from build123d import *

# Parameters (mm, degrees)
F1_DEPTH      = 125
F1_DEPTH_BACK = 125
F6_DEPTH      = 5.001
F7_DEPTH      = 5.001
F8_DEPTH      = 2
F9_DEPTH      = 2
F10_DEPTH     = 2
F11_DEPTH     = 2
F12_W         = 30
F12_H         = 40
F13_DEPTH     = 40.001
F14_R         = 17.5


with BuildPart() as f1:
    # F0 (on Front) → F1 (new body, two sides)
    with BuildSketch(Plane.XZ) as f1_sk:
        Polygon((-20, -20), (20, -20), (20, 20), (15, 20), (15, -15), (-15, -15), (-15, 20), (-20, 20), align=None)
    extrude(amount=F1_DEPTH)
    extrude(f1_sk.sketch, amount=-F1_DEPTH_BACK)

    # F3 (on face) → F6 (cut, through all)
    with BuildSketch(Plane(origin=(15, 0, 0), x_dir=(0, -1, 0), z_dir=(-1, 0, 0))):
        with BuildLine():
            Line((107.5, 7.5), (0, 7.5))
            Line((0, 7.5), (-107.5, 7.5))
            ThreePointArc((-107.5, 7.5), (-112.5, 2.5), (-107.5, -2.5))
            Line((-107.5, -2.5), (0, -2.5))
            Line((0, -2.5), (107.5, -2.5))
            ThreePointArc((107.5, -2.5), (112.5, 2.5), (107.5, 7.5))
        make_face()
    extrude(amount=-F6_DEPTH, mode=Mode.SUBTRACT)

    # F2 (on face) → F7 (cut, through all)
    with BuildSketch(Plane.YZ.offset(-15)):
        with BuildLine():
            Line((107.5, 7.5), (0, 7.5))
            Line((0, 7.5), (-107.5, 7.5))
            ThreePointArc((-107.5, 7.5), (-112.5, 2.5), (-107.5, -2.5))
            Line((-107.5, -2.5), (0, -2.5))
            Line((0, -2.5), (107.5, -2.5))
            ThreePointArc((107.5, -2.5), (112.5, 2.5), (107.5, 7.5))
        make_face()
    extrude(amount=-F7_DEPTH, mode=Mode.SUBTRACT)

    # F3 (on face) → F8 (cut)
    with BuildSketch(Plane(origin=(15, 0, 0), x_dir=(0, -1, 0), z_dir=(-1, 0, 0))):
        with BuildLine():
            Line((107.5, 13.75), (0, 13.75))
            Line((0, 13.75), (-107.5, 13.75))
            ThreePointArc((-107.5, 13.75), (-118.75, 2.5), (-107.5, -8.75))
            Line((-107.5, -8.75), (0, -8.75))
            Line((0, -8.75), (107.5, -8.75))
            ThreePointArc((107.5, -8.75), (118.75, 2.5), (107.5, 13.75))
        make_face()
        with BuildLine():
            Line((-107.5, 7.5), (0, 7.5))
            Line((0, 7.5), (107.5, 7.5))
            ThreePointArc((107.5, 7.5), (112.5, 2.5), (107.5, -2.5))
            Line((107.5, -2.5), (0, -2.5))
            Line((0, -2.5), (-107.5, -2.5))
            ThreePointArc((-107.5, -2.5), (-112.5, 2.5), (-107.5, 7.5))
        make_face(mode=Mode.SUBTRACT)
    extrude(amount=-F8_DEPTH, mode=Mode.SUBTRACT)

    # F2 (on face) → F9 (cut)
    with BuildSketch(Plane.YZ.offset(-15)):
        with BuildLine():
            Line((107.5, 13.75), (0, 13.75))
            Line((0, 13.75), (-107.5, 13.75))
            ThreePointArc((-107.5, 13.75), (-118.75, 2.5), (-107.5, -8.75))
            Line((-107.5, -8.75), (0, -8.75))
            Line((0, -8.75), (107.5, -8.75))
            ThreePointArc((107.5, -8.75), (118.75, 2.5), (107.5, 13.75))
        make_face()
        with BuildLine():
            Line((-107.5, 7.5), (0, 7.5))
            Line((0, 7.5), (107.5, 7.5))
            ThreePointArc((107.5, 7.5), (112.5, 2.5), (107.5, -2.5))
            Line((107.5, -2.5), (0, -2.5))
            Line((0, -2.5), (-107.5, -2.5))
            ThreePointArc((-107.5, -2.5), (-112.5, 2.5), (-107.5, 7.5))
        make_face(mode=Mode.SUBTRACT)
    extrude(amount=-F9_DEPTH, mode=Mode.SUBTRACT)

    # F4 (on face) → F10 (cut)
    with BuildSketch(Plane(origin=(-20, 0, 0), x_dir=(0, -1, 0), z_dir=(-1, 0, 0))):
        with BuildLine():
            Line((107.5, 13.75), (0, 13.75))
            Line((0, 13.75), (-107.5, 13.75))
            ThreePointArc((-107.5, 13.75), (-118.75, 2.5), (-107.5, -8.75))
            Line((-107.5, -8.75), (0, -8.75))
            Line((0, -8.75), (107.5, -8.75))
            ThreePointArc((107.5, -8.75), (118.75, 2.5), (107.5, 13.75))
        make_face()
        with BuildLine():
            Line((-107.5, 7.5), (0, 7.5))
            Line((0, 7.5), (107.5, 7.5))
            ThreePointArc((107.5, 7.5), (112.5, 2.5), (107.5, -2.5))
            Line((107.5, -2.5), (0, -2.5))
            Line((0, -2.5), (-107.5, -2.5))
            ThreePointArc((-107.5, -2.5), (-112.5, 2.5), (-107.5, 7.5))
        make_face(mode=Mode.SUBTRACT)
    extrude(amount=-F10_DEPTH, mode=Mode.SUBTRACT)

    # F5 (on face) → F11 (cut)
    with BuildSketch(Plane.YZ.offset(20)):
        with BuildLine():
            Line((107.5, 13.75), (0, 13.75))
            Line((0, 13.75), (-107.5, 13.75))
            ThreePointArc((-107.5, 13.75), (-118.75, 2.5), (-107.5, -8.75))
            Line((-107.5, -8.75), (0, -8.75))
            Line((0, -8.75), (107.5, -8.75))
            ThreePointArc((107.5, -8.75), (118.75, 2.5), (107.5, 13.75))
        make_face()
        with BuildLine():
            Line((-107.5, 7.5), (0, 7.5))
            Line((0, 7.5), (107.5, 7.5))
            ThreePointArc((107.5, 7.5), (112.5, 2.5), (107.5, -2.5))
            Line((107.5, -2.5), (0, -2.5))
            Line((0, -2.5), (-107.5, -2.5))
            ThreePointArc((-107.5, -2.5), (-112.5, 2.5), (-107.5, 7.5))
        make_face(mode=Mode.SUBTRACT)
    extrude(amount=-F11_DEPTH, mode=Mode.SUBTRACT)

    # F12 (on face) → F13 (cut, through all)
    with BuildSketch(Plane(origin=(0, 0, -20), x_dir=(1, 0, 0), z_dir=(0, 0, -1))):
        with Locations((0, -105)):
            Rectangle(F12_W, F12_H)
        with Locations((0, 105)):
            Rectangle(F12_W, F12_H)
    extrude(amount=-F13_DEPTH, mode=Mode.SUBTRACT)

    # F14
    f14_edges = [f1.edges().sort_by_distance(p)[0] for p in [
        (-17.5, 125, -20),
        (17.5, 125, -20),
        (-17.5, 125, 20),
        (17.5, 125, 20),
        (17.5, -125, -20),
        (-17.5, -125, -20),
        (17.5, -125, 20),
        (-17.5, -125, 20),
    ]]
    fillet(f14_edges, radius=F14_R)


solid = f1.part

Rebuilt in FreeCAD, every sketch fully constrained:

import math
import FreeCAD as App
import Part
import Sketcher


def edges_at(feature, points):
    """Names of the edges that pass closest to the given points."""
    edges = feature.Shape.Edges
    near = lambda p: min(range(len(edges)), key=lambda i: edges[i].distToShape(Part.Vertex(*p))[0])
    return sorted({f"Edge{near(p) + 1}" for p in points})


def add_polygon(sketch, points):
    """Adds a closed chain of lines whose ends are joined by coincident constraints."""
    first, n = sketch.GeometryCount, len(points)
    for a, b in zip(points, points[1:] + points[:1]):
        sketch.addGeometry(Part.LineSegment(App.Vector(*a, 0), App.Vector(*b, 0)), False)
    for i in range(n):
        sketch.addConstraint(Sketcher.Constraint("Coincident", first + i, 2, first + (i + 1) % n, 1))

doc = App.newDocument("Part")
body = doc.addObject("PartDesign::Body", "Body")

# Sketch on XZ plane
sketch1 = doc.addObject("Sketcher::SketchObject", "Sketch")
body.addObject(sketch1)
sketch1.AttachmentSupport = (doc.XZ_Plane, [""])
sketch1.MapMode = "FlatFace"
add_polygon(sketch1, [(-20, -20), (20, -20), (20, 20), (15, 20), (15, -15), (-15, -15), (-15, 20), (-20, 20)])  # lines 0-7
sketch1.addConstraint(Sketcher.Constraint("Horizontal", 0))
sketch1.addConstraint(Sketcher.Constraint("Vertical", 1))
sketch1.addConstraint(Sketcher.Constraint("Horizontal", 2))
sketch1.addConstraint(Sketcher.Constraint("Vertical", 3))
sketch1.addConstraint(Sketcher.Constraint("Horizontal", 4))
sketch1.addConstraint(Sketcher.Constraint("Vertical", 5))
sketch1.addConstraint(Sketcher.Constraint("Horizontal", 6))
sketch1.addConstraint(Sketcher.Constraint("Vertical", 7))
sketch1.addConstraint(Sketcher.Constraint("Symmetric", 0, 2, 6, 2, -1, 1))
sketch1.addConstraint(Sketcher.Constraint("Symmetric", 2, 2, 5, 2, -2))
sketch1.addConstraint(Sketcher.Constraint("Equal", 0, 1))
sketch1.addConstraint(Sketcher.Constraint("DistanceX", 0, 1, 0, 2, 40.0))
sketch1.addConstraint(Sketcher.Constraint("DistanceX", 2, 2, 2, 1, 5.0))
sketch1.addConstraint(Sketcher.Constraint("DistanceY", 3, 2, 3, 1, 35.0))
pad1 = doc.addObject("PartDesign::Pad", "Pad")
body.addObject(pad1)
pad1.Profile = sketch1
pad1.Type = "TwoLengths"
pad1.Length = 125
pad1.Length2 = 125

# Sketch on YZ plane
sketch2 = doc.addObject("Sketcher::SketchObject", "Sketch001")
body.addObject(sketch2)
sketch2.AttachmentSupport = (doc.YZ_Plane, [""])
sketch2.MapMode = "FlatFace"
sketch2.AttachmentOffset = App.Placement(App.Vector(0, 0, 15), App.Rotation())
sketch2.addGeometry(Part.LineSegment(App.Vector(-107.5, 7.5, 0), App.Vector(107.5, 7.5, 0)), False)
sketch2.addGeometry(Part.ArcOfCircle(Part.Circle(App.Vector(107.5, 2.5, 0), App.Vector(0, 0, 1), 5), math.radians(-90), math.radians(90)), False)
sketch2.addGeometry(Part.LineSegment(App.Vector(107.5, -2.5, 0), App.Vector(-107.5, -2.5, 0)), False)
sketch2.addGeometry(Part.ArcOfCircle(Part.Circle(App.Vector(-107.5, 2.5, 0), App.Vector(0, 0, 1), 5), math.radians(90), math.radians(270)), False)
sketch2.addConstraint(Sketcher.Constraint("Tangent", 0, 2, 1, 2))
sketch2.addConstraint(Sketcher.Constraint("Tangent", 1, 1, 2, 1))
sketch2.addConstraint(Sketcher.Constraint("Tangent", 2, 2, 3, 2))
sketch2.addConstraint(Sketcher.Constraint("Tangent", 3, 1, 0, 1))
sketch2.addConstraint(Sketcher.Constraint("Horizontal", 0))
sketch2.addConstraint(Sketcher.Constraint("Horizontal", 2))
sketch2.addConstraint(Sketcher.Constraint("Radius", 1, 5.0))
sketch2.addConstraint(Sketcher.Constraint("DistanceX", 0, 1, 0, 2, 215.0))
sketch2.addConstraint(Sketcher.Constraint("DistanceX", -1, 1, 1, 3, 107.5))
sketch2.addConstraint(Sketcher.Constraint("DistanceY", -1, 1, 1, 3, 2.5))
pocket1 = doc.addObject("PartDesign::Pocket", "Pocket")
body.addObject(pocket1)
pocket1.Profile = sketch2
pocket1.Type = "ThroughAll"
pocket1.Reversed = True

# Sketch on YZ plane
sketch3 = doc.addObject("Sketcher::SketchObject", "Sketch002")
body.addObject(sketch3)
sketch3.AttachmentSupport = (doc.YZ_Plane, [""])
sketch3.MapMode = "FlatFace"
sketch3.AttachmentOffset = App.Placement(App.Vector(0, 0, -15), App.Rotation())
sketch3.addGeometry(Part.LineSegment(App.Vector(107.5, 7.5, 0), App.Vector(-107.5, 7.5, 0)), False)
sketch3.addGeometry(Part.ArcOfCircle(Part.Circle(App.Vector(-107.5, 2.5, 0), App.Vector(0, 0, 1), 5), math.radians(90), math.radians(270)), False)
sketch3.addGeometry(Part.LineSegment(App.Vector(-107.5, -2.5, 0), App.Vector(107.5, -2.5, 0)), False)
sketch3.addGeometry(Part.ArcOfCircle(Part.Circle(App.Vector(107.5, 2.5, 0), App.Vector(0, 0, 1), 5), math.radians(-90), math.radians(90)), False)
sketch3.addConstraint(Sketcher.Constraint("Tangent", 0, 2, 1, 1))
sketch3.addConstraint(Sketcher.Constraint("Tangent", 1, 2, 2, 1))
sketch3.addConstraint(Sketcher.Constraint("Tangent", 2, 2, 3, 1))
sketch3.addConstraint(Sketcher.Constraint("Tangent", 3, 2, 0, 1))
sketch3.addConstraint(Sketcher.Constraint("Horizontal", 0))
sketch3.addConstraint(Sketcher.Constraint("Horizontal", 2))
sketch3.addConstraint(Sketcher.Constraint("Radius", 1, 5.0))
sketch3.addConstraint(Sketcher.Constraint("DistanceX", 0, 2, 0, 1, 215.0))
sketch3.addConstraint(Sketcher.Constraint("DistanceX", 1, 3, -1, 1, 107.5))
sketch3.addConstraint(Sketcher.Constraint("DistanceY", -1, 1, 1, 3, 2.5))
pocket2 = doc.addObject("PartDesign::Pocket", "Pocket001")
body.addObject(pocket2)
pocket2.Profile = sketch3
pocket2.Type = "ThroughAll"

# Sketch on YZ plane
sketch4 = doc.addObject("Sketcher::SketchObject", "Sketch003")
body.addObject(sketch4)
sketch4.AttachmentSupport = (doc.YZ_Plane, [""])
sketch4.MapMode = "FlatFace"
sketch4.AttachmentOffset = App.Placement(App.Vector(0, 0, 15), App.Rotation())
sketch4.addGeometry(Part.LineSegment(App.Vector(-107.5, 13.75, 0), App.Vector(107.5, 13.75, 0)), False)
sketch4.addGeometry(Part.ArcOfCircle(Part.Circle(App.Vector(107.5, 2.5, 0), App.Vector(0, 0, 1), 11.25), math.radians(-90), math.radians(90)), False)
sketch4.addGeometry(Part.LineSegment(App.Vector(107.5, -8.75, 0), App.Vector(-107.5, -8.75, 0)), False)
sketch4.addGeometry(Part.ArcOfCircle(Part.Circle(App.Vector(-107.5, 2.5, 0), App.Vector(0, 0, 1), 11.25), math.radians(90), math.radians(270)), False)
sketch4.addGeometry(Part.ArcOfCircle(Part.Circle(App.Vector(107.5, 2.5, 0), App.Vector(0, 0, 1), 5), math.radians(-90), math.radians(90)), False)
sketch4.addGeometry(Part.LineSegment(App.Vector(107.5, 7.5, 0), App.Vector(-107.5, 7.5, 0)), False)
sketch4.addGeometry(Part.ArcOfCircle(Part.Circle(App.Vector(-107.5, 2.5, 0), App.Vector(0, 0, 1), 5), math.radians(90), math.radians(270)), False)
sketch4.addGeometry(Part.LineSegment(App.Vector(-107.5, -2.5, 0), App.Vector(107.5, -2.5, 0)), False)
sketch4.addConstraint(Sketcher.Constraint("Tangent", 0, 2, 1, 2))
sketch4.addConstraint(Sketcher.Constraint("Tangent", 1, 1, 2, 1))
sketch4.addConstraint(Sketcher.Constraint("Tangent", 2, 2, 3, 2))
sketch4.addConstraint(Sketcher.Constraint("Tangent", 3, 1, 0, 1))
sketch4.addConstraint(Sketcher.Constraint("Tangent", 4, 2, 5, 1))
sketch4.addConstraint(Sketcher.Constraint("Tangent", 5, 2, 6, 1))
sketch4.addConstraint(Sketcher.Constraint("Tangent", 6, 2, 7, 1))
sketch4.addConstraint(Sketcher.Constraint("Tangent", 7, 2, 4, 1))
sketch4.addConstraint(Sketcher.Constraint("Horizontal", 0))
sketch4.addConstraint(Sketcher.Constraint("Horizontal", 2))
sketch4.addConstraint(Sketcher.Constraint("Horizontal", 5))
sketch4.addConstraint(Sketcher.Constraint("Horizontal", 7))
sketch4.addConstraint(Sketcher.Constraint("Coincident", 4, 3, 1, 3))
sketch4.addConstraint(Sketcher.Constraint("Vertical", 6, 3, 2, 2))
sketch4.addConstraint(Sketcher.Constraint("Radius", 4, 5.0))
sketch4.addConstraint(Sketcher.Constraint("DistanceX", 0, 1, 0, 2, 215.0))
sketch4.addConstraint(Sketcher.Constraint("Radius", 1, 11.25))
sketch4.addConstraint(Sketcher.Constraint("DistanceX", -1, 1, 1, 3, 107.5))
sketch4.addConstraint(Sketcher.Constraint("DistanceY", -1, 1, 1, 3, 2.5))
pocket3 = doc.addObject("PartDesign::Pocket", "Pocket002")
body.addObject(pocket3)
pocket3.Profile = sketch4
pocket3.Length = 2
pocket3.Reversed = True

# Sketch on YZ plane
sketch5 = doc.addObject("Sketcher::SketchObject", "Sketch004")
body.addObject(sketch5)
sketch5.AttachmentSupport = (doc.YZ_Plane, [""])
sketch5.MapMode = "FlatFace"
sketch5.AttachmentOffset = App.Placement(App.Vector(0, 0, -15), App.Rotation())
sketch5.addGeometry(Part.LineSegment(App.Vector(107.5, 13.75, 0), App.Vector(-107.5, 13.75, 0)), False)
sketch5.addGeometry(Part.ArcOfCircle(Part.Circle(App.Vector(-107.5, 2.5, 0), App.Vector(0, 0, 1), 11.25), math.radians(90), math.radians(270)), False)
sketch5.addGeometry(Part.LineSegment(App.Vector(-107.5, -8.75, 0), App.Vector(107.5, -8.75, 0)), False)
sketch5.addGeometry(Part.ArcOfCircle(Part.Circle(App.Vector(107.5, 2.5, 0), App.Vector(0, 0, 1), 11.25), math.radians(-90), math.radians(90)), False)
sketch5.addGeometry(Part.ArcOfCircle(Part.Circle(App.Vector(-107.5, 2.5, 0), App.Vector(0, 0, 1), 5), math.radians(90), math.radians(270)), False)
sketch5.addGeometry(Part.LineSegment(App.Vector(-107.5, 7.5, 0), App.Vector(107.5, 7.5, 0)), False)
sketch5.addGeometry(Part.ArcOfCircle(Part.Circle(App.Vector(107.5, 2.5, 0), App.Vector(0, 0, 1), 5), math.radians(-90), math.radians(90)), False)
sketch5.addGeometry(Part.LineSegment(App.Vector(107.5, -2.5, 0), App.Vector(-107.5, -2.5, 0)), False)
sketch5.addConstraint(Sketcher.Constraint("Tangent", 0, 2, 1, 1))
sketch5.addConstraint(Sketcher.Constraint("Tangent", 1, 2, 2, 1))
sketch5.addConstraint(Sketcher.Constraint("Tangent", 2, 2, 3, 1))
sketch5.addConstraint(Sketcher.Constraint("Tangent", 3, 2, 0, 1))
sketch5.addConstraint(Sketcher.Constraint("Tangent", 4, 1, 5, 1))
sketch5.addConstraint(Sketcher.Constraint("Tangent", 5, 2, 6, 2))
sketch5.addConstraint(Sketcher.Constraint("Tangent", 6, 1, 7, 1))
sketch5.addConstraint(Sketcher.Constraint("Tangent", 7, 2, 4, 2))
sketch5.addConstraint(Sketcher.Constraint("Horizontal", 0))
sketch5.addConstraint(Sketcher.Constraint("Horizontal", 2))
sketch5.addConstraint(Sketcher.Constraint("Horizontal", 5))
sketch5.addConstraint(Sketcher.Constraint("Horizontal", 7))
sketch5.addConstraint(Sketcher.Constraint("Coincident", 4, 3, 1, 3))
sketch5.addConstraint(Sketcher.Constraint("Vertical", 6, 3, 2, 2))
sketch5.addConstraint(Sketcher.Constraint("Radius", 4, 5.0))
sketch5.addConstraint(Sketcher.Constraint("DistanceX", 0, 2, 0, 1, 215.0))
sketch5.addConstraint(Sketcher.Constraint("Radius", 1, 11.25))
sketch5.addConstraint(Sketcher.Constraint("DistanceX", 1, 3, -1, 1, 107.5))
sketch5.addConstraint(Sketcher.Constraint("DistanceY", -1, 1, 1, 3, 2.5))
pocket4 = doc.addObject("PartDesign::Pocket", "Pocket003")
body.addObject(pocket4)
pocket4.Profile = sketch5
pocket4.Length = 2

# Sketch on YZ plane
sketch6 = doc.addObject("Sketcher::SketchObject", "Sketch005")
body.addObject(sketch6)
sketch6.AttachmentSupport = (doc.YZ_Plane, [""])
sketch6.MapMode = "FlatFace"
sketch6.AttachmentOffset = App.Placement(App.Vector(0, 0, -20), App.Rotation())
sketch6.addGeometry(Part.LineSegment(App.Vector(-107.5, 13.75, 0), App.Vector(107.5, 13.75, 0)), False)
sketch6.addGeometry(Part.ArcOfCircle(Part.Circle(App.Vector(107.5, 2.5, 0), App.Vector(0, 0, 1), 11.25), math.radians(-90), math.radians(90)), False)
sketch6.addGeometry(Part.LineSegment(App.Vector(107.5, -8.75, 0), App.Vector(-107.5, -8.75, 0)), False)
sketch6.addGeometry(Part.ArcOfCircle(Part.Circle(App.Vector(-107.5, 2.5, 0), App.Vector(0, 0, 1), 11.25), math.radians(90), math.radians(270)), False)
sketch6.addGeometry(Part.ArcOfCircle(Part.Circle(App.Vector(107.5, 2.5, 0), App.Vector(0, 0, 1), 5), math.radians(-90), math.radians(90)), False)
sketch6.addGeometry(Part.LineSegment(App.Vector(107.5, 7.5, 0), App.Vector(-107.5, 7.5, 0)), False)
sketch6.addGeometry(Part.ArcOfCircle(Part.Circle(App.Vector(-107.5, 2.5, 0), App.Vector(0, 0, 1), 5), math.radians(90), math.radians(270)), False)
sketch6.addGeometry(Part.LineSegment(App.Vector(-107.5, -2.5, 0), App.Vector(107.5, -2.5, 0)), False)
sketch6.addConstraint(Sketcher.Constraint("Tangent", 0, 2, 1, 2))
sketch6.addConstraint(Sketcher.Constraint("Tangent", 1, 1, 2, 1))
sketch6.addConstraint(Sketcher.Constraint("Tangent", 2, 2, 3, 2))
sketch6.addConstraint(Sketcher.Constraint("Tangent", 3, 1, 0, 1))
sketch6.addConstraint(Sketcher.Constraint("Tangent", 4, 2, 5, 1))
sketch6.addConstraint(Sketcher.Constraint("Tangent", 5, 2, 6, 1))
sketch6.addConstraint(Sketcher.Constraint("Tangent", 6, 2, 7, 1))
sketch6.addConstraint(Sketcher.Constraint("Tangent", 7, 2, 4, 1))
sketch6.addConstraint(Sketcher.Constraint("Horizontal", 0))
sketch6.addConstraint(Sketcher.Constraint("Horizontal", 2))
sketch6.addConstraint(Sketcher.Constraint("Horizontal", 5))
sketch6.addConstraint(Sketcher.Constraint("Horizontal", 7))
sketch6.addConstraint(Sketcher.Constraint("Coincident", 4, 3, 1, 3))
sketch6.addConstraint(Sketcher.Constraint("Vertical", 6, 3, 2, 2))
sketch6.addConstraint(Sketcher.Constraint("Radius", 4, 5.0))
sketch6.addConstraint(Sketcher.Constraint("DistanceX", 0, 1, 0, 2, 215.0))
sketch6.addConstraint(Sketcher.Constraint("Radius", 1, 11.25))
sketch6.addConstraint(Sketcher.Constraint("DistanceX", -1, 1, 1, 3, 107.5))
sketch6.addConstraint(Sketcher.Constraint("DistanceY", -1, 1, 1, 3, 2.5))
pocket5 = doc.addObject("PartDesign::Pocket", "Pocket004")
body.addObject(pocket5)
pocket5.Profile = sketch6
pocket5.Length = 2
pocket5.Reversed = True

# Sketch on YZ plane
sketch7 = doc.addObject("Sketcher::SketchObject", "Sketch006")
body.addObject(sketch7)
sketch7.AttachmentSupport = (doc.YZ_Plane, [""])
sketch7.MapMode = "FlatFace"
sketch7.AttachmentOffset = App.Placement(App.Vector(0, 0, 20), App.Rotation())
sketch7.addGeometry(Part.LineSegment(App.Vector(107.5, 13.75, 0), App.Vector(-107.5, 13.75, 0)), False)
sketch7.addGeometry(Part.ArcOfCircle(Part.Circle(App.Vector(-107.5, 2.5, 0), App.Vector(0, 0, 1), 11.25), math.radians(90), math.radians(270)), False)
sketch7.addGeometry(Part.LineSegment(App.Vector(-107.5, -8.75, 0), App.Vector(107.5, -8.75, 0)), False)
sketch7.addGeometry(Part.ArcOfCircle(Part.Circle(App.Vector(107.5, 2.5, 0), App.Vector(0, 0, 1), 11.25), math.radians(-90), math.radians(90)), False)
sketch7.addGeometry(Part.ArcOfCircle(Part.Circle(App.Vector(-107.5, 2.5, 0), App.Vector(0, 0, 1), 5), math.radians(90), math.radians(270)), False)
sketch7.addGeometry(Part.LineSegment(App.Vector(-107.5, 7.5, 0), App.Vector(107.5, 7.5, 0)), False)
sketch7.addGeometry(Part.ArcOfCircle(Part.Circle(App.Vector(107.5, 2.5, 0), App.Vector(0, 0, 1), 5), math.radians(-90), math.radians(90)), False)
sketch7.addGeometry(Part.LineSegment(App.Vector(107.5, -2.5, 0), App.Vector(-107.5, -2.5, 0)), False)
sketch7.addConstraint(Sketcher.Constraint("Tangent", 0, 2, 1, 1))
sketch7.addConstraint(Sketcher.Constraint("Tangent", 1, 2, 2, 1))
sketch7.addConstraint(Sketcher.Constraint("Tangent", 2, 2, 3, 1))
sketch7.addConstraint(Sketcher.Constraint("Tangent", 3, 2, 0, 1))
sketch7.addConstraint(Sketcher.Constraint("Tangent", 4, 1, 5, 1))
sketch7.addConstraint(Sketcher.Constraint("Tangent", 5, 2, 6, 2))
sketch7.addConstraint(Sketcher.Constraint("Tangent", 6, 1, 7, 1))
sketch7.addConstraint(Sketcher.Constraint("Tangent", 7, 2, 4, 2))
sketch7.addConstraint(Sketcher.Constraint("Horizontal", 0))
sketch7.addConstraint(Sketcher.Constraint("Horizontal", 2))
sketch7.addConstraint(Sketcher.Constraint("Horizontal", 5))
sketch7.addConstraint(Sketcher.Constraint("Horizontal", 7))
sketch7.addConstraint(Sketcher.Constraint("Coincident", 4, 3, 1, 3))
sketch7.addConstraint(Sketcher.Constraint("Vertical", 6, 3, 2, 2))
sketch7.addConstraint(Sketcher.Constraint("Radius", 4, 5.0))
sketch7.addConstraint(Sketcher.Constraint("DistanceX", 0, 2, 0, 1, 215.0))
sketch7.addConstraint(Sketcher.Constraint("Radius", 1, 11.25))
sketch7.addConstraint(Sketcher.Constraint("DistanceX", 1, 3, -1, 1, 107.5))
sketch7.addConstraint(Sketcher.Constraint("DistanceY", -1, 1, 1, 3, 2.5))
pocket6 = doc.addObject("PartDesign::Pocket", "Pocket005")
body.addObject(pocket6)
pocket6.Profile = sketch7
pocket6.Length = 2

# Sketch on XY plane
sketch8 = doc.addObject("Sketcher::SketchObject", "Sketch007")
body.addObject(sketch8)
sketch8.AttachmentSupport = (doc.XY_Plane, [""])
sketch8.MapMode = "FlatFace"
sketch8.AttachmentOffset = App.Placement(App.Vector(0, 0, -20), App.Rotation())
add_polygon(sketch8, [(-15, 85), (-15, 125), (15, 125), (15, 85)])  # lines 0-3
add_polygon(sketch8, [(-15, -125), (-15, -85), (15, -85), (15, -125)])  # lines 4-7
sketch8.addConstraint(Sketcher.Constraint("Vertical", 0))
sketch8.addConstraint(Sketcher.Constraint("Horizontal", 1))
sketch8.addConstraint(Sketcher.Constraint("Vertical", 2))
sketch8.addConstraint(Sketcher.Constraint("Horizontal", 3))
sketch8.addConstraint(Sketcher.Constraint("Vertical", 4))
sketch8.addConstraint(Sketcher.Constraint("Horizontal", 5))
sketch8.addConstraint(Sketcher.Constraint("Vertical", 6))
sketch8.addConstraint(Sketcher.Constraint("Horizontal", 7))
sketch8.addConstraint(Sketcher.Constraint("Symmetric", 2, 2, 4, 2, -1, 1))
sketch8.addConstraint(Sketcher.Constraint("Symmetric", 0, 2, 6, 2, -1, 1))
sketch8.addConstraint(Sketcher.Constraint("Vertical", 3, 2, 4, 2))
sketch8.addConstraint(Sketcher.Constraint("DistanceX", 1, 1, 1, 2, 30.0))
sketch8.addConstraint(Sketcher.Constraint("DistanceY", 0, 1, 0, 2, 40.0))
sketch8.addConstraint(Sketcher.Constraint("DistanceY", -1, 1, 0, 2, 125.0))
pocket7 = doc.addObject("PartDesign::Pocket", "Pocket006")
body.addObject(pocket7)
pocket7.Profile = sketch8
pocket7.Type = "ThroughAll"
pocket7.Reversed = True
doc.recompute()

fillet = doc.addObject("PartDesign::Fillet", "Fillet")
body.addObject(fillet)
fillet.Base = (pocket7, edges_at(pocket7, [
    (-17.5, 125, -20),
    (17.5, 125, -20),
    (-17.5, 125, 20),
    (17.5, 125, 20),
    (17.5, -125, -20),
    (-17.5, -125, -20),
    (17.5, -125, 20),
    (-17.5, -125, 20),
]))
fillet.Radius = 17.5

doc.recompute()
